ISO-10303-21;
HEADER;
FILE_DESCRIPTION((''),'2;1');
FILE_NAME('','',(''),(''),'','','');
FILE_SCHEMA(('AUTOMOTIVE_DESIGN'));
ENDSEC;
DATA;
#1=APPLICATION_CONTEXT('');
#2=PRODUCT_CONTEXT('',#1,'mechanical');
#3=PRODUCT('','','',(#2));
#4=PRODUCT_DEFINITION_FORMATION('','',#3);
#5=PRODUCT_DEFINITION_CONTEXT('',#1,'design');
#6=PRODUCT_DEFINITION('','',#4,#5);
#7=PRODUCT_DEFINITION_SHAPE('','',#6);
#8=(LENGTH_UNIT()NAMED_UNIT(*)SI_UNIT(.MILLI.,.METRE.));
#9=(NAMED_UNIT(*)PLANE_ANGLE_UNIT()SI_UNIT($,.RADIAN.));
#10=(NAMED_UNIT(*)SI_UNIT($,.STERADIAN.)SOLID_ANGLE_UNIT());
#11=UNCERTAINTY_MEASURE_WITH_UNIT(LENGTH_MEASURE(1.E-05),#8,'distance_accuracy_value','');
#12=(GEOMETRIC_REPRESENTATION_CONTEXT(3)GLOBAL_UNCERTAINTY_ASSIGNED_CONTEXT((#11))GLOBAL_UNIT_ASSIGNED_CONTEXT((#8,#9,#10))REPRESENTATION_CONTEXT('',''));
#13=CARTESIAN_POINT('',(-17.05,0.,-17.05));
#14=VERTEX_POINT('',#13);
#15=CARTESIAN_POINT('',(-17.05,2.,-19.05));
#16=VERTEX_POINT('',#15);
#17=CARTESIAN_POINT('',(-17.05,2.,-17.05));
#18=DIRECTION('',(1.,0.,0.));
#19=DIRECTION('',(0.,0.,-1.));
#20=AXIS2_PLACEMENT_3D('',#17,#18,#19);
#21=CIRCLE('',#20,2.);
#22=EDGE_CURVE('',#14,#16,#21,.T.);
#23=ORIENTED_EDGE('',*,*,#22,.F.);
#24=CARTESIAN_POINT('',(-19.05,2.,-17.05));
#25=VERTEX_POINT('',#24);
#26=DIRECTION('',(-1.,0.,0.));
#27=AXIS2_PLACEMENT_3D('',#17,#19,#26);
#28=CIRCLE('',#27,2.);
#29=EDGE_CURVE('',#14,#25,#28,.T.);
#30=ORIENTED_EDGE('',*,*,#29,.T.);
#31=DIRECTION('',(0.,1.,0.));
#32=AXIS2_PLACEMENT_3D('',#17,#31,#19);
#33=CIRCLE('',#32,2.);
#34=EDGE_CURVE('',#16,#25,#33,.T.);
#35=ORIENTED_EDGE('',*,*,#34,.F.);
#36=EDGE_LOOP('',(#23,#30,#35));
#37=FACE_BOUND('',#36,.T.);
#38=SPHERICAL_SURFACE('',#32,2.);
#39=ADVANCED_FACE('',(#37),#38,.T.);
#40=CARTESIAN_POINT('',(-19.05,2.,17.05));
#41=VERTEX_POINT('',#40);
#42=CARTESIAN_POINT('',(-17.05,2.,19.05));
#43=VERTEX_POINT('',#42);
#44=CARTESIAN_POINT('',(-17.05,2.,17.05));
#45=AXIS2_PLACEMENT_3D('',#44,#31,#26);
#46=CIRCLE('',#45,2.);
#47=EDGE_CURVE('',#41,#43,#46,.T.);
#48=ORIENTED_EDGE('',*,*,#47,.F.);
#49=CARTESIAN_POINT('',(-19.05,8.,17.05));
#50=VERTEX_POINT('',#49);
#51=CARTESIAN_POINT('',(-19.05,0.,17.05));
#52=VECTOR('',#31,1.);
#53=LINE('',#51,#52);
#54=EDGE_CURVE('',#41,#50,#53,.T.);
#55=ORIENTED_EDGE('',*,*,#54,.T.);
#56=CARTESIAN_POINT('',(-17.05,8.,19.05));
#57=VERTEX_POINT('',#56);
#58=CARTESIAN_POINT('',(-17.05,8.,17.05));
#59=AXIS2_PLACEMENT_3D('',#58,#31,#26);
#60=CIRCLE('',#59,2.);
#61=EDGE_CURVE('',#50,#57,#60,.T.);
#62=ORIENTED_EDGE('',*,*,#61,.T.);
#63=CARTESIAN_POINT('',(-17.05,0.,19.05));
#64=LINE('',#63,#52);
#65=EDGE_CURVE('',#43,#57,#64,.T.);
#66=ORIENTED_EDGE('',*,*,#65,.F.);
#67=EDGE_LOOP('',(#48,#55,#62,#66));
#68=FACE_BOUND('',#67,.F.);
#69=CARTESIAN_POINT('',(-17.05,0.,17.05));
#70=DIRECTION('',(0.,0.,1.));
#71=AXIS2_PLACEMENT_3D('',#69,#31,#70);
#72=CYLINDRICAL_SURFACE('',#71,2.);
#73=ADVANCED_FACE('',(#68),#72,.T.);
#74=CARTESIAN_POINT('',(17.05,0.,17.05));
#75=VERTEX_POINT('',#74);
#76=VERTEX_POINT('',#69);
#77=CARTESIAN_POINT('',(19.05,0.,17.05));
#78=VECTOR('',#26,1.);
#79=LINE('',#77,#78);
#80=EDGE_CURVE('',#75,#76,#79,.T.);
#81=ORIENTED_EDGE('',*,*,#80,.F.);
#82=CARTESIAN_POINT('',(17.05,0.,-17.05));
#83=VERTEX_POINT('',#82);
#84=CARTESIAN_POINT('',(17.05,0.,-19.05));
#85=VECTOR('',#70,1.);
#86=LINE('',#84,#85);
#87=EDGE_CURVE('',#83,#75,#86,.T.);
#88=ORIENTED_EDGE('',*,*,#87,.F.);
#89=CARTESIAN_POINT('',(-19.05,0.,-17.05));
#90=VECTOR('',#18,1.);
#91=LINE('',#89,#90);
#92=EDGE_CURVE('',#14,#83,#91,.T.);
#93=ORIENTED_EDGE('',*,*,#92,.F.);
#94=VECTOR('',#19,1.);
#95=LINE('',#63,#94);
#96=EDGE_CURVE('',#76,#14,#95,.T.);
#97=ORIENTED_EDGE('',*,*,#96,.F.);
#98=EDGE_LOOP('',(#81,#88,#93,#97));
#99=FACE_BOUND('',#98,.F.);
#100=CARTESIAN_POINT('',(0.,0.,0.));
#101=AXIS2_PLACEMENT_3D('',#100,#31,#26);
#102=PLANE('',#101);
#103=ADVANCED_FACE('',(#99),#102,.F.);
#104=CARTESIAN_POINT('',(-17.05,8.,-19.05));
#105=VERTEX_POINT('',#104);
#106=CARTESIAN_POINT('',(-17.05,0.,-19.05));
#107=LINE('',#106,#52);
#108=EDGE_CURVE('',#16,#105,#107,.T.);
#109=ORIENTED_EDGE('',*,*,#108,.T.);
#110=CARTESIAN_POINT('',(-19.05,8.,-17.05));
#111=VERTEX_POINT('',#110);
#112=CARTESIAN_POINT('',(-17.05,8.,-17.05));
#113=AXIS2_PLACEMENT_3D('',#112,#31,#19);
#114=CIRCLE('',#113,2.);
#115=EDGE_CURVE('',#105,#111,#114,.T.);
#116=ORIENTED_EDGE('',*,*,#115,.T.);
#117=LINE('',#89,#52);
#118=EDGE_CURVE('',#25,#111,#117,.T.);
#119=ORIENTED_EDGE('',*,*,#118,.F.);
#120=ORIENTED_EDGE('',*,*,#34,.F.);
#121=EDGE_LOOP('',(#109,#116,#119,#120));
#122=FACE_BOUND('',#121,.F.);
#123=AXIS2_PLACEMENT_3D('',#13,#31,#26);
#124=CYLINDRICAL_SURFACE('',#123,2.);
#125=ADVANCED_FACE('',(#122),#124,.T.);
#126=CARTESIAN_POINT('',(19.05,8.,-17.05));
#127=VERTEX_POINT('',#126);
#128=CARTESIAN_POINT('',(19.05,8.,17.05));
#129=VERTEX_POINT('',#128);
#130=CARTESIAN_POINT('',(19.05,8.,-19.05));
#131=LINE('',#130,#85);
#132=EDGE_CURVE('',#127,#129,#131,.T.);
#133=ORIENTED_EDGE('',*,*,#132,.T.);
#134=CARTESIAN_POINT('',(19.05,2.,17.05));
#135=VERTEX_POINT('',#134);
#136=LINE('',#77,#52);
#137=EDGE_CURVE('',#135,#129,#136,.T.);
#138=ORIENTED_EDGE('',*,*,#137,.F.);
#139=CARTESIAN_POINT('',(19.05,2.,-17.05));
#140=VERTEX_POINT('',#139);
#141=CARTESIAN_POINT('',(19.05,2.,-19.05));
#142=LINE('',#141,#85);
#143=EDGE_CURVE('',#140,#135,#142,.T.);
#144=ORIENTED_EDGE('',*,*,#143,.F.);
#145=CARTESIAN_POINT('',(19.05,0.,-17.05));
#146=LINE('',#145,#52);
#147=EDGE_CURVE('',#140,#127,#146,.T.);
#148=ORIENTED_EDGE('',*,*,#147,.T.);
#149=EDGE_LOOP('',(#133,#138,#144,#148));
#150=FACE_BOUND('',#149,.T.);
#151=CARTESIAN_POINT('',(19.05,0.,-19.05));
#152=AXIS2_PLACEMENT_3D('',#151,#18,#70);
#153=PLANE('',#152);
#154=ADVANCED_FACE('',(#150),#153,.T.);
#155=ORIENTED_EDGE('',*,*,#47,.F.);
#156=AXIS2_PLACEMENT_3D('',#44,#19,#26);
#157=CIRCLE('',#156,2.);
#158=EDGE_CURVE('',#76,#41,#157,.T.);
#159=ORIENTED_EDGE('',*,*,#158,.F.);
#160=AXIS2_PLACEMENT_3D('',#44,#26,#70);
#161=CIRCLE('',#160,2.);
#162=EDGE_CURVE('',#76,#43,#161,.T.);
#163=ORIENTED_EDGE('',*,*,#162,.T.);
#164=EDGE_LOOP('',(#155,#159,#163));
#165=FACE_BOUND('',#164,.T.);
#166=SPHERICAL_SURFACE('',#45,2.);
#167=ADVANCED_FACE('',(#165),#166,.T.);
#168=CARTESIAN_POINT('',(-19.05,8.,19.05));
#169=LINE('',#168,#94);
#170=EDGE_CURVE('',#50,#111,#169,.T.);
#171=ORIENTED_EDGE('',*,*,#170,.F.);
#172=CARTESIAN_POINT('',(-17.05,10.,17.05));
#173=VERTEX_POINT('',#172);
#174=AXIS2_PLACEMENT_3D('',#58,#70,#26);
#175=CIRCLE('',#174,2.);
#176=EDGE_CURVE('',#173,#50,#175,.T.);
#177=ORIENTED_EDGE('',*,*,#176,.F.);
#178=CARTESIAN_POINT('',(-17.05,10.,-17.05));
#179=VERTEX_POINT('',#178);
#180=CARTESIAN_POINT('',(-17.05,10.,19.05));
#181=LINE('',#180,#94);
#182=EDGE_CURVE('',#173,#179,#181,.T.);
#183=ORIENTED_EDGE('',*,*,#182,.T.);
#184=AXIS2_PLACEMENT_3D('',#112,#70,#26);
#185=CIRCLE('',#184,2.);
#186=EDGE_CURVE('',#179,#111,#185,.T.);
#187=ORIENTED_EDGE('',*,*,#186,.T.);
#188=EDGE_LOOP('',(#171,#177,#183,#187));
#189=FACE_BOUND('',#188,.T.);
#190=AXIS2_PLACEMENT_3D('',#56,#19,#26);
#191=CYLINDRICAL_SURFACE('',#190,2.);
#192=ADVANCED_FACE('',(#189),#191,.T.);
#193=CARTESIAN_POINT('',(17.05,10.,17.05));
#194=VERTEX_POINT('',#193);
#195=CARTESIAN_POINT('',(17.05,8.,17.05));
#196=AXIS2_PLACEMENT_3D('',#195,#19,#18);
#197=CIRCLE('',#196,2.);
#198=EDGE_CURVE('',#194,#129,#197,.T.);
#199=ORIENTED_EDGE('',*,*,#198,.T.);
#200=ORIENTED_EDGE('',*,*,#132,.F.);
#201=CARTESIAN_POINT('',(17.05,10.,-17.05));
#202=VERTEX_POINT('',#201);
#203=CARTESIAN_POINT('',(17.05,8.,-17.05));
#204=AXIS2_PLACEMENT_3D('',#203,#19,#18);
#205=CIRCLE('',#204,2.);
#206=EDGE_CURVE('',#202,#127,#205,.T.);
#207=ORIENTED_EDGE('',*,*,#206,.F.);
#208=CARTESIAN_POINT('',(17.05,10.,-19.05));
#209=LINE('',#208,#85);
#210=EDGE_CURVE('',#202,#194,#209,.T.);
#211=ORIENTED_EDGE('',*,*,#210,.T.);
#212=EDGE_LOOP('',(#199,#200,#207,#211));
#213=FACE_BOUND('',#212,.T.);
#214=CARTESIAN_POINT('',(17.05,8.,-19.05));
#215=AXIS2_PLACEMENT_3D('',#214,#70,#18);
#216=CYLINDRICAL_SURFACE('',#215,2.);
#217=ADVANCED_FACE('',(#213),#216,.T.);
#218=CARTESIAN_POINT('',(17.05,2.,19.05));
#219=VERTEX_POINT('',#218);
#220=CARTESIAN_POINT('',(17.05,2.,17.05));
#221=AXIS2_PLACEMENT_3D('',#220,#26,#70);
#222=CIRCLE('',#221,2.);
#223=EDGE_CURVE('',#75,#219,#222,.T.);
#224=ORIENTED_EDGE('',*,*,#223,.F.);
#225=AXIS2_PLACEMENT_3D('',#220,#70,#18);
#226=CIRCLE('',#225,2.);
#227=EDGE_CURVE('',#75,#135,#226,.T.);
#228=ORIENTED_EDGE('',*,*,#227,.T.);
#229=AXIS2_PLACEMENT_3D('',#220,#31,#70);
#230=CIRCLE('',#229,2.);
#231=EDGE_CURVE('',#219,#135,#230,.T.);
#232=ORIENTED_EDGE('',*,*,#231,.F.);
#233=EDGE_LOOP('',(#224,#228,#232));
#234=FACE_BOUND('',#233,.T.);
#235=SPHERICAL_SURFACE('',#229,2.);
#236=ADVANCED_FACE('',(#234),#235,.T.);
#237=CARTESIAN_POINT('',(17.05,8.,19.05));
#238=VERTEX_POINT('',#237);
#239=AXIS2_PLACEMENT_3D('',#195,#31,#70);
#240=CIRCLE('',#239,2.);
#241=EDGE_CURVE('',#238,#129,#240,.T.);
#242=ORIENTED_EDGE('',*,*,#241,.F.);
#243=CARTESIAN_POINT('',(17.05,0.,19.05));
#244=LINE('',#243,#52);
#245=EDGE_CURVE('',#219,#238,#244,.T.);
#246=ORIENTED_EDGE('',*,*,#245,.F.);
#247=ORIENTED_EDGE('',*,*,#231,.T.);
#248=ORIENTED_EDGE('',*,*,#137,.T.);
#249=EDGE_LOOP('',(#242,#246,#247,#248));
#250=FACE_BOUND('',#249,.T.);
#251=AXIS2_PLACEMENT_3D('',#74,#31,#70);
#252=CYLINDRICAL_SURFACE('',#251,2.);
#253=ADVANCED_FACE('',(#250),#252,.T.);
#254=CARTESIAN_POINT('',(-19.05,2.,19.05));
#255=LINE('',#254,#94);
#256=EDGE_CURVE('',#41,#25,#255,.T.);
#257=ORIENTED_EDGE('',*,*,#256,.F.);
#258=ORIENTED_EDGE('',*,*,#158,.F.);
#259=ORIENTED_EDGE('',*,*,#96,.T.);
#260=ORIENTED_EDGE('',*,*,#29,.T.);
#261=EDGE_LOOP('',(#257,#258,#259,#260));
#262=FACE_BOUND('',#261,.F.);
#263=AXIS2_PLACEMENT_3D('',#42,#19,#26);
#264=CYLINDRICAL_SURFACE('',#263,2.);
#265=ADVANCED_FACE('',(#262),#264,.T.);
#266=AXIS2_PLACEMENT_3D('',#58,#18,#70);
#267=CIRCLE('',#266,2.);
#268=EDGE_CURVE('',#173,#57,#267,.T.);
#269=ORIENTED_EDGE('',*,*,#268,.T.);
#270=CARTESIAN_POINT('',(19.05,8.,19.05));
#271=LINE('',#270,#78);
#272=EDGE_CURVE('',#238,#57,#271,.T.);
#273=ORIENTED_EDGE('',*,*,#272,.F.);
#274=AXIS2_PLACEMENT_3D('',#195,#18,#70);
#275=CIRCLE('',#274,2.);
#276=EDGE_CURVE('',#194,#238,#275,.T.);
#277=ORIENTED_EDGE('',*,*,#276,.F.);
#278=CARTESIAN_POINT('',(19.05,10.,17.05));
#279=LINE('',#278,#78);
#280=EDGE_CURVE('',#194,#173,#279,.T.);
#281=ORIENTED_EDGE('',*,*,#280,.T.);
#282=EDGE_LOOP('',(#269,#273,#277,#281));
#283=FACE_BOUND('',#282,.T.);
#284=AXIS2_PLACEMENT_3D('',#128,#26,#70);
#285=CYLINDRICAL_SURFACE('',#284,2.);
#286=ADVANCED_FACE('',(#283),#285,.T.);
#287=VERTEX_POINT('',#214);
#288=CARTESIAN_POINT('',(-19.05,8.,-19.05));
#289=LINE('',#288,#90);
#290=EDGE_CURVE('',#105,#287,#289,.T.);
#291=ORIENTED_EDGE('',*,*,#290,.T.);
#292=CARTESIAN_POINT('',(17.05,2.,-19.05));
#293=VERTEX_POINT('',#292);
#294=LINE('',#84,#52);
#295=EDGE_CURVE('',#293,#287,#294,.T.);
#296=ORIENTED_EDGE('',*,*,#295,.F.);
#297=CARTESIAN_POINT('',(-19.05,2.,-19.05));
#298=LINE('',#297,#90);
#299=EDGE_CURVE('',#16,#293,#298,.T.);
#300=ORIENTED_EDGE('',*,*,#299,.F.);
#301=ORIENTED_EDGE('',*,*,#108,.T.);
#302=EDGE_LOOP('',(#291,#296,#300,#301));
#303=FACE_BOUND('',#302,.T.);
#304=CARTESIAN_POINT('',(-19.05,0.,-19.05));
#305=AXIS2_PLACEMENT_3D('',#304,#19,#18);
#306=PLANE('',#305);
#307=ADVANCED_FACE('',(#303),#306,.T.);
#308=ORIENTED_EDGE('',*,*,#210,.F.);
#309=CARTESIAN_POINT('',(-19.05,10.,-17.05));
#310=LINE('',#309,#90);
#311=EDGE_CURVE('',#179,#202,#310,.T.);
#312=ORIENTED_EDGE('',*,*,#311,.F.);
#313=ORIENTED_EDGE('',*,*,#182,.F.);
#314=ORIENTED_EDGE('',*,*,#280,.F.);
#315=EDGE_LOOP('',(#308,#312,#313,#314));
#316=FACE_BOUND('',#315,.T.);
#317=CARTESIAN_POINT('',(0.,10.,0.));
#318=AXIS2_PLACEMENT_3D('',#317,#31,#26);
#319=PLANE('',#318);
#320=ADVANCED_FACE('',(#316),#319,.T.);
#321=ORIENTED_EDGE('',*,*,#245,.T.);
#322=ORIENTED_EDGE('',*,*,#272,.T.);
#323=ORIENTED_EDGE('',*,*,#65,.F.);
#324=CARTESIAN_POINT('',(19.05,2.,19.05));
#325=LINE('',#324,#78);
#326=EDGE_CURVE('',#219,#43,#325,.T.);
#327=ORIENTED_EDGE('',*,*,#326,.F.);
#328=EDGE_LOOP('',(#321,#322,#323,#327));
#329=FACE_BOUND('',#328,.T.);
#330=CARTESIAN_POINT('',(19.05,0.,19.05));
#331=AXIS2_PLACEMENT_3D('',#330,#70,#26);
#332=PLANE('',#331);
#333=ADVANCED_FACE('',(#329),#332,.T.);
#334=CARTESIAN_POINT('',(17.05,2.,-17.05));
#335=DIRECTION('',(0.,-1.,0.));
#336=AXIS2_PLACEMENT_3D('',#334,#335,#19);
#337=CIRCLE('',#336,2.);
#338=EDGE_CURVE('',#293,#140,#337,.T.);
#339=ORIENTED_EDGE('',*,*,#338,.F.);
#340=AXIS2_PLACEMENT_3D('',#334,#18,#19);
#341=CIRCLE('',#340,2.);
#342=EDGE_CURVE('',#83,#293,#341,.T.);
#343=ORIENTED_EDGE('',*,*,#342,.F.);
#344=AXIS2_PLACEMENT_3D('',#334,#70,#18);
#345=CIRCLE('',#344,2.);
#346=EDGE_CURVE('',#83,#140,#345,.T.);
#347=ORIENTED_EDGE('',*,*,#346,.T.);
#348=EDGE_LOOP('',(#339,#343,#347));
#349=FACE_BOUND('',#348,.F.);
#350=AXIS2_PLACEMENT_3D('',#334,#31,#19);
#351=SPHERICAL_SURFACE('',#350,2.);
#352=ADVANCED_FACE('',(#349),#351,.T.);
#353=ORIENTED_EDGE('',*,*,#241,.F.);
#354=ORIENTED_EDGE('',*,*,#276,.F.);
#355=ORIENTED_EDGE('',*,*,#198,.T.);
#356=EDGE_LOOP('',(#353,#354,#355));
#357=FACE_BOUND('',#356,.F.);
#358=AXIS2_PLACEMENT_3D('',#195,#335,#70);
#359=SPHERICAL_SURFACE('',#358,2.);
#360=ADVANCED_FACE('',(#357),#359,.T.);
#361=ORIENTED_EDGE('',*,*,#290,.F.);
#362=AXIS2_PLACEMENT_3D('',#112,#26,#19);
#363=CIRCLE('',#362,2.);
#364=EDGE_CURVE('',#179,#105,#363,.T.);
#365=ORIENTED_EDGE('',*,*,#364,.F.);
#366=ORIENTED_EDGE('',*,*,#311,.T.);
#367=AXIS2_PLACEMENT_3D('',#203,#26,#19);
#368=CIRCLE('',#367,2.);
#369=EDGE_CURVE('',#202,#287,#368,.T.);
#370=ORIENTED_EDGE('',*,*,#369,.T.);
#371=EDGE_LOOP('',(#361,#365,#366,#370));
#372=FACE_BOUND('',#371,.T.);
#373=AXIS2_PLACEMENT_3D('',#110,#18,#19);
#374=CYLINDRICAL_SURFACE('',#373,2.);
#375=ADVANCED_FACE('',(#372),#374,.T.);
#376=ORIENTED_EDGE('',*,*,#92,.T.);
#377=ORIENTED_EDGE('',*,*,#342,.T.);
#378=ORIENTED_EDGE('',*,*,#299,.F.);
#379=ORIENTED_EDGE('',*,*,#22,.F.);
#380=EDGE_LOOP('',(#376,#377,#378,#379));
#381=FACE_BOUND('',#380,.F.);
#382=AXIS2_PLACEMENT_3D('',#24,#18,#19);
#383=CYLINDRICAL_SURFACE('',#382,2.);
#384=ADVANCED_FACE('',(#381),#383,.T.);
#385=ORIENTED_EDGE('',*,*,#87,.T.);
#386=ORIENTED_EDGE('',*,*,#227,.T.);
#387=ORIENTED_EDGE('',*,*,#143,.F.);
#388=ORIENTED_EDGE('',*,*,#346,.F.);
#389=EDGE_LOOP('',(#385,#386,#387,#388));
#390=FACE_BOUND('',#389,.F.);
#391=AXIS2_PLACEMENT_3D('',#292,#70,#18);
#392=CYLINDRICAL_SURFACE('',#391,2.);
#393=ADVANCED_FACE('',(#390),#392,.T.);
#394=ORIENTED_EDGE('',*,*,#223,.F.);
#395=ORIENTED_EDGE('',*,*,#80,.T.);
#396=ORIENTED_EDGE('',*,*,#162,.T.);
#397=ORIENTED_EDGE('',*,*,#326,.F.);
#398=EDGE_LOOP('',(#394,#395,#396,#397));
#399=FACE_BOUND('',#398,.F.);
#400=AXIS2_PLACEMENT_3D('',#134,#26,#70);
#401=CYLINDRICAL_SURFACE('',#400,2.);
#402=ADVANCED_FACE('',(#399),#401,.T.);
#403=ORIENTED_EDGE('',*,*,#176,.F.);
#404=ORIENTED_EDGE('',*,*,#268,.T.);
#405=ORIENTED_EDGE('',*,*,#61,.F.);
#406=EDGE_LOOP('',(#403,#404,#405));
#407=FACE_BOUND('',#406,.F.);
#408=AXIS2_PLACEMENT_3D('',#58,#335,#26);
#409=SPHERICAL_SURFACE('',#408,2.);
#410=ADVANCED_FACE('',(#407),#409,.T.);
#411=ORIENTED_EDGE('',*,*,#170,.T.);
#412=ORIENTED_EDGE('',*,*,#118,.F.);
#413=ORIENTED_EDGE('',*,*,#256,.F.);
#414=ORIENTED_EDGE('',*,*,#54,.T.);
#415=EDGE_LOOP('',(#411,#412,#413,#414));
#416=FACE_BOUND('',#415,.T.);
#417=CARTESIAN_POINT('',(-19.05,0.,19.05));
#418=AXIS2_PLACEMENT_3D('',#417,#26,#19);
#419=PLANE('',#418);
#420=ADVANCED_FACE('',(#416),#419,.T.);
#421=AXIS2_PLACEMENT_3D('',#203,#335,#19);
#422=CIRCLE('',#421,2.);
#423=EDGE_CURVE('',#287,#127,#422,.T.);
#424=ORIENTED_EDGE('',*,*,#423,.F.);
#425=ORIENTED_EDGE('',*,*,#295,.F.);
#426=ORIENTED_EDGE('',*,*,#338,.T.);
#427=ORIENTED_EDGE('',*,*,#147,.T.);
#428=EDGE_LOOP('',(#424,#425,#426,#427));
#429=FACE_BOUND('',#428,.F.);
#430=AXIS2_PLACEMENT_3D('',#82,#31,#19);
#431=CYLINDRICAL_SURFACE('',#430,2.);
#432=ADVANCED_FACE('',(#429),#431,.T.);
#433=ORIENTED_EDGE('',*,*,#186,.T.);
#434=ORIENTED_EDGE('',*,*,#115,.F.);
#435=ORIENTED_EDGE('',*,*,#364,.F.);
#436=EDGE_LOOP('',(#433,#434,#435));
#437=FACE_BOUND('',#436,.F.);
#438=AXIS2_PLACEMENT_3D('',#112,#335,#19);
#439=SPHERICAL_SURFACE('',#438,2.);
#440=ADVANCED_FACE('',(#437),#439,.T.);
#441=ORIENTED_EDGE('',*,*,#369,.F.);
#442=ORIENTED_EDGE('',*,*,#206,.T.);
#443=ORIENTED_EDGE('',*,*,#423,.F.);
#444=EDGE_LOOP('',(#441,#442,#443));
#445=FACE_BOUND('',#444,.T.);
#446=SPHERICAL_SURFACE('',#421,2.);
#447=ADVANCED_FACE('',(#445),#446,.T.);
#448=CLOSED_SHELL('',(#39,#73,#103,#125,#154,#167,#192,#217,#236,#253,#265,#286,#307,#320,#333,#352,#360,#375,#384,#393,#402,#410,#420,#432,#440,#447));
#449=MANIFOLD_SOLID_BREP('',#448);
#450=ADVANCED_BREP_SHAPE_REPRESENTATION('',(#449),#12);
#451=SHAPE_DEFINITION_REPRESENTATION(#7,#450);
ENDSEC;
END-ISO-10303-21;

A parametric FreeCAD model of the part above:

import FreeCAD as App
import Part
import Sketcher


def edges_at(feature, points):
    """Names of the edges that pass closest to the given points."""
    edges = feature.Shape.Edges
    near = lambda p: min(range(len(edges)), key=lambda i: edges[i].distToShape(Part.Vertex(*p))[0])
    return sorted({f"Edge{near(p) + 1}" for p in points})


def add_polygon(sketch, points):
    """Adds a closed chain of lines whose ends are joined by coincident constraints."""
    first, n = sketch.GeometryCount, len(points)
    for a, b in zip(points, points[1:] + points[:1]):
        sketch.addGeometry(Part.LineSegment(App.Vector(*a, 0), App.Vector(*b, 0)), False)
    for i in range(n):
        sketch.addConstraint(Sketcher.Constraint("Coincident", first + i, 2, first + (i + 1) % n, 1))

doc = App.newDocument("Part")
body = doc.addObject("PartDesign::Body", "Body")

sketch1 = body.newObject("Sketcher::SketchObject", "Sketch")
sketch1.AttachmentSupport = (doc.getObject("XZ_Plane"), [""])
sketch1.MapMode = "FlatFace"
add_polygon(sketch1, [(-19, 19), (19, 19), (19, -19), (-19, -19)])
sketch1.addConstraint([
    Sketcher.Constraint("Horizontal", 0),
    Sketcher.Constraint("Vertical", 1),
    Sketcher.Constraint("Horizontal", 2),
    Sketcher.Constraint("Vertical", 3),
    Sketcher.Constraint("Symmetric", 0, 2, 2, 2, -1, 1),
    Sketcher.Constraint("Equal", 2, 1),
    Sketcher.Constraint("DistanceX", 0, 1, 0, 2, 38.1),
])
pad1 = body.newObject("PartDesign::Pad", "Pad")
pad1.Profile = sketch1
pad1.Length = 10
pad1.Reversed = True
doc.recompute()

fillet = body.newObject("PartDesign::Fillet", "Fillet")
fillet.Base = (pad1, edges_at(pad1, [
    (19.05, 5, 19.05),
    (19.05, 5, -19.05),
    (-19.05, 5, 19.05),
    (-19.05, 5, -19.05),
]))
fillet.Radius = 2
doc.recompute()

fillet2 = body.newObject("PartDesign::Fillet", "Fillet001")
fillet2.Base = (fillet, edges_at(fillet, [
    (0, 10, -19.05),
    (-19.05, 10, 0),
    (0, 10, 19.05),
    (19.05, 10, 0),
    (0, 0, -19.05),
    (-19.05, 0, 0),
    (0, 0, 19.05),
    (19.05, 0, 0),
]))
fillet2.Radius = 2

doc.recompute()
